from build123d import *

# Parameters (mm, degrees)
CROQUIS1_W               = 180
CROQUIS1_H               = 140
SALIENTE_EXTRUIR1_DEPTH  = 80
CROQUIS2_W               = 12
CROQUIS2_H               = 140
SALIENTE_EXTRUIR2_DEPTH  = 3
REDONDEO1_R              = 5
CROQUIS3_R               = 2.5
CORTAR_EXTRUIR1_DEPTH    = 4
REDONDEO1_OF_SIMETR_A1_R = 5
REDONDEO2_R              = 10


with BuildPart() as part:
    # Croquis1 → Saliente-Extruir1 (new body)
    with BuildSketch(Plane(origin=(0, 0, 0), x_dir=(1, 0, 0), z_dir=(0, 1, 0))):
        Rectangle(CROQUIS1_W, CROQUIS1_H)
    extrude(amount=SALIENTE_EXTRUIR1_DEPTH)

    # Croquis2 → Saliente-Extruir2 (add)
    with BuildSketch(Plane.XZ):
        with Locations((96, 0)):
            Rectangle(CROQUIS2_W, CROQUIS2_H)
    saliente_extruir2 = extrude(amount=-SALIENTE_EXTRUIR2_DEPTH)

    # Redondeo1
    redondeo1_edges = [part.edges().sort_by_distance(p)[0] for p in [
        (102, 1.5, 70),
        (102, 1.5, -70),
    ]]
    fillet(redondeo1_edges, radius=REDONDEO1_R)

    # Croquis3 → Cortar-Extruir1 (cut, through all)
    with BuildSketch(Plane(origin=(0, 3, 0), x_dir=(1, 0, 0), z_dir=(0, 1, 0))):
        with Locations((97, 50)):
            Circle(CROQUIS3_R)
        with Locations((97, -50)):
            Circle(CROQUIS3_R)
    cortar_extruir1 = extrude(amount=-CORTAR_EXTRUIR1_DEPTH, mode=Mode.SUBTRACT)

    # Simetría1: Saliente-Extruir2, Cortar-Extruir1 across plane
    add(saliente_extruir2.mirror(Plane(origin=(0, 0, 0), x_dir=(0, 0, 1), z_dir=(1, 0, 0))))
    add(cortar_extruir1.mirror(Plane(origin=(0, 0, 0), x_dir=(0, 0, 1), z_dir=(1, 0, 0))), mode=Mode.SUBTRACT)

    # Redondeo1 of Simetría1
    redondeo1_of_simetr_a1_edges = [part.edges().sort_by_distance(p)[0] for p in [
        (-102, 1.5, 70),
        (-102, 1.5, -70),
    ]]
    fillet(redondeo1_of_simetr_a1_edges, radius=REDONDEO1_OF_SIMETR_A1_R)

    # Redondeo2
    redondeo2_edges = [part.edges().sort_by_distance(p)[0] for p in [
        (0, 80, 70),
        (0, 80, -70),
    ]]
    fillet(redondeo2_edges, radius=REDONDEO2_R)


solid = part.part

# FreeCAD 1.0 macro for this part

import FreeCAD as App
import Part
import Sketcher
Q = App.Units.Quantity


def edges_at(feature, points):
    """Names of the edges that pass closest to the given points."""
    edges = feature.Shape.Edges
    near = lambda p: min(range(len(edges)), key=lambda i: edges[i].distToShape(Part.Vertex(*p))[0])
    return sorted({f"Edge{near(p) + 1}" for p in points})

doc = App.newDocument("Part")
body = doc.addObject("PartDesign::Body", "Body")

# Sketch on XZ plane
sketch1 = body.newObject("Sketcher::SketchObject", "Sketch")
sketch1.AttachmentSupport = (doc.getObject("XZ_Plane"), [""])
sketch1.MapMode = "FlatFace"
sketch1.addGeometry([
    Part.LineSegment(App.Vector(-90, -70, 0), App.Vector(-90, 70, 0)),
    Part.LineSegment(App.Vector(-90, 70, 0), App.Vector(90, 70, 0)),
    Part.LineSegment(App.Vector(90, 70, 0), App.Vector(90, -70, 0)),
    Part.LineSegment(App.Vector(90, -70, 0), App.Vector(-90, -70, 0)),
], False)
sketch1.addConstraint([
    Sketcher.Constraint("Coincident", 0, 2, 1, 1),
    Sketcher.Constraint("Coincident", 1, 2, 2, 1),
    Sketcher.Constraint("Coincident", 2, 2, 3, 1),
    Sketcher.Constraint("Coincident", 3, 2, 0, 1),
    Sketcher.Constraint("Vertical", 0),
    Sketcher.Constraint("Horizontal", 1),
    Sketcher.Constraint("Vertical", 2),
    Sketcher.Constraint("Horizontal", 3),
    Sketcher.Constraint("Symmetric", 0, 2, 2, 2, -1, 1),
    Sketcher.Constraint("DistanceX", 1, 1, 1, 2, Q("180 mm")),
    Sketcher.Constraint("DistanceY", 0, 1, 0, 2, Q("140 mm")),
])
pad1 = body.newObject("PartDesign::Pad", "Pad")
pad1.Profile = sketch1
pad1.Length = 80
pad1.Reversed = True

# Sketch on XZ plane
sketch2 = body.newObject("Sketcher::SketchObject", "Sketch001")
sketch2.AttachmentSupport = (doc.getObject("XZ_Plane"), [""])
sketch2.MapMode = "FlatFace"
sketch2.addGeometry([
    Part.LineSegment(App.Vector(90, 70, 0), App.Vector(90, -70, 0)),
    Part.LineSegment(App.Vector(90, -70, 0), App.Vector(102, -70, 0)),
    Part.LineSegment(App.Vector(102, -70, 0), App.Vector(102, 70, 0)),
    Part.LineSegment(App.Vector(102, 70, 0), App.Vector(90, 70, 0)),
], False)
sketch2.addConstraint([
    Sketcher.Constraint("Coincident", 0, 2, 1, 1),
    Sketcher.Constraint("Coincident", 1, 2, 2, 1),
    Sketcher.Constraint("Coincident", 2, 2, 3, 1),
    Sketcher.Constraint("Coincident", 3, 2, 0, 1),
    Sketcher.Constraint("Vertical", 0),
    Sketcher.Constraint("Horizontal", 1),
    Sketcher.Constraint("Vertical", 2),
    Sketcher.Constraint("Horizontal", 3),
    Sketcher.Constraint("DistanceX", 1, 1, 1, 2, Q("12 mm")),
    Sketcher.Constraint("DistanceY", 0, 2, 0, 1, Q("140 mm")),
    Sketcher.Constraint("DistanceX", -1, 1, 0, 2, Q("90 mm")),
    Sketcher.Constraint("DistanceY", 0, 2, -1, 1, Q("70 mm")),
])
pad2 = body.newObject("PartDesign::Pad", "Pad001")
pad2.Profile = sketch2
pad2.Length = 3
pad2.Reversed = True
doc.recompute()

fillet = body.newObject("PartDesign::Fillet", "Fillet")
fillet.Base = (pad2, edges_at(pad2, [(102, 1.5, 70), (102, 1.5, -70)]))
fillet.Radius = 5

# Sketch on XZ plane
sketch3 = body.newObject("Sketcher::SketchObject", "Sketch002")
sketch3.AttachmentSupport = (doc.getObject("XZ_Plane"), [""])
sketch3.MapMode = "FlatFace"
sketch3.AttachmentOffset = App.Placement(App.Vector(0, 0, -3), App.Rotation())
sketch3.addGeometry([
    Part.Circle(App.Vector(97, -50, 0), App.Vector(0, 0, 1), 2.5),
    Part.Circle(App.Vector(97, 50, 0), App.Vector(0, 0, 1), 2.5),
], False)
sketch3.addConstraint([
    Sketcher.Constraint("Equal", 0, 1),
    Sketcher.Constraint("Symmetric", 0, 3, 1, 3, -1),
    Sketcher.Constraint("Diameter", 0, Q("5 mm")),
    Sketcher.Constraint("DistanceX", -1, 1, 0, 3, Q("97 mm")),
    Sketcher.Constraint("DistanceY", 0, 3, -1, 1, Q("50 mm")),
])
pocket1 = body.newObject("PartDesign::Pocket", "Pocket")
pocket1.Profile = sketch3
pocket1.Type = "ThroughAll"
pocket1.Reversed = True
doc.recompute()

mirrored = body.newObject("PartDesign::Mirrored", "Mirrored")
mirrored.Originals = [pad2, pocket1]
mirrored.MirrorPlane = (doc.getObject("YZ_Plane"), [""])
body.Tip = mirrored
doc.recompute()

fillet2 = body.newObject("PartDesign::Fillet", "Fillet001")
fillet2.Base = (mirrored, edges_at(mirrored, [(-102, 1.5, 70), (-102, 1.5, -70)]))
fillet2.Radius = 5
doc.recompute()

fillet3 = body.newObject("PartDesign::Fillet", "Fillet002")
fillet3.Base = (fillet2, edges_at(fillet2, [(0, 80, 70), (0, 80, -70)]))
fillet3.Radius = 10

doc.recompute()
